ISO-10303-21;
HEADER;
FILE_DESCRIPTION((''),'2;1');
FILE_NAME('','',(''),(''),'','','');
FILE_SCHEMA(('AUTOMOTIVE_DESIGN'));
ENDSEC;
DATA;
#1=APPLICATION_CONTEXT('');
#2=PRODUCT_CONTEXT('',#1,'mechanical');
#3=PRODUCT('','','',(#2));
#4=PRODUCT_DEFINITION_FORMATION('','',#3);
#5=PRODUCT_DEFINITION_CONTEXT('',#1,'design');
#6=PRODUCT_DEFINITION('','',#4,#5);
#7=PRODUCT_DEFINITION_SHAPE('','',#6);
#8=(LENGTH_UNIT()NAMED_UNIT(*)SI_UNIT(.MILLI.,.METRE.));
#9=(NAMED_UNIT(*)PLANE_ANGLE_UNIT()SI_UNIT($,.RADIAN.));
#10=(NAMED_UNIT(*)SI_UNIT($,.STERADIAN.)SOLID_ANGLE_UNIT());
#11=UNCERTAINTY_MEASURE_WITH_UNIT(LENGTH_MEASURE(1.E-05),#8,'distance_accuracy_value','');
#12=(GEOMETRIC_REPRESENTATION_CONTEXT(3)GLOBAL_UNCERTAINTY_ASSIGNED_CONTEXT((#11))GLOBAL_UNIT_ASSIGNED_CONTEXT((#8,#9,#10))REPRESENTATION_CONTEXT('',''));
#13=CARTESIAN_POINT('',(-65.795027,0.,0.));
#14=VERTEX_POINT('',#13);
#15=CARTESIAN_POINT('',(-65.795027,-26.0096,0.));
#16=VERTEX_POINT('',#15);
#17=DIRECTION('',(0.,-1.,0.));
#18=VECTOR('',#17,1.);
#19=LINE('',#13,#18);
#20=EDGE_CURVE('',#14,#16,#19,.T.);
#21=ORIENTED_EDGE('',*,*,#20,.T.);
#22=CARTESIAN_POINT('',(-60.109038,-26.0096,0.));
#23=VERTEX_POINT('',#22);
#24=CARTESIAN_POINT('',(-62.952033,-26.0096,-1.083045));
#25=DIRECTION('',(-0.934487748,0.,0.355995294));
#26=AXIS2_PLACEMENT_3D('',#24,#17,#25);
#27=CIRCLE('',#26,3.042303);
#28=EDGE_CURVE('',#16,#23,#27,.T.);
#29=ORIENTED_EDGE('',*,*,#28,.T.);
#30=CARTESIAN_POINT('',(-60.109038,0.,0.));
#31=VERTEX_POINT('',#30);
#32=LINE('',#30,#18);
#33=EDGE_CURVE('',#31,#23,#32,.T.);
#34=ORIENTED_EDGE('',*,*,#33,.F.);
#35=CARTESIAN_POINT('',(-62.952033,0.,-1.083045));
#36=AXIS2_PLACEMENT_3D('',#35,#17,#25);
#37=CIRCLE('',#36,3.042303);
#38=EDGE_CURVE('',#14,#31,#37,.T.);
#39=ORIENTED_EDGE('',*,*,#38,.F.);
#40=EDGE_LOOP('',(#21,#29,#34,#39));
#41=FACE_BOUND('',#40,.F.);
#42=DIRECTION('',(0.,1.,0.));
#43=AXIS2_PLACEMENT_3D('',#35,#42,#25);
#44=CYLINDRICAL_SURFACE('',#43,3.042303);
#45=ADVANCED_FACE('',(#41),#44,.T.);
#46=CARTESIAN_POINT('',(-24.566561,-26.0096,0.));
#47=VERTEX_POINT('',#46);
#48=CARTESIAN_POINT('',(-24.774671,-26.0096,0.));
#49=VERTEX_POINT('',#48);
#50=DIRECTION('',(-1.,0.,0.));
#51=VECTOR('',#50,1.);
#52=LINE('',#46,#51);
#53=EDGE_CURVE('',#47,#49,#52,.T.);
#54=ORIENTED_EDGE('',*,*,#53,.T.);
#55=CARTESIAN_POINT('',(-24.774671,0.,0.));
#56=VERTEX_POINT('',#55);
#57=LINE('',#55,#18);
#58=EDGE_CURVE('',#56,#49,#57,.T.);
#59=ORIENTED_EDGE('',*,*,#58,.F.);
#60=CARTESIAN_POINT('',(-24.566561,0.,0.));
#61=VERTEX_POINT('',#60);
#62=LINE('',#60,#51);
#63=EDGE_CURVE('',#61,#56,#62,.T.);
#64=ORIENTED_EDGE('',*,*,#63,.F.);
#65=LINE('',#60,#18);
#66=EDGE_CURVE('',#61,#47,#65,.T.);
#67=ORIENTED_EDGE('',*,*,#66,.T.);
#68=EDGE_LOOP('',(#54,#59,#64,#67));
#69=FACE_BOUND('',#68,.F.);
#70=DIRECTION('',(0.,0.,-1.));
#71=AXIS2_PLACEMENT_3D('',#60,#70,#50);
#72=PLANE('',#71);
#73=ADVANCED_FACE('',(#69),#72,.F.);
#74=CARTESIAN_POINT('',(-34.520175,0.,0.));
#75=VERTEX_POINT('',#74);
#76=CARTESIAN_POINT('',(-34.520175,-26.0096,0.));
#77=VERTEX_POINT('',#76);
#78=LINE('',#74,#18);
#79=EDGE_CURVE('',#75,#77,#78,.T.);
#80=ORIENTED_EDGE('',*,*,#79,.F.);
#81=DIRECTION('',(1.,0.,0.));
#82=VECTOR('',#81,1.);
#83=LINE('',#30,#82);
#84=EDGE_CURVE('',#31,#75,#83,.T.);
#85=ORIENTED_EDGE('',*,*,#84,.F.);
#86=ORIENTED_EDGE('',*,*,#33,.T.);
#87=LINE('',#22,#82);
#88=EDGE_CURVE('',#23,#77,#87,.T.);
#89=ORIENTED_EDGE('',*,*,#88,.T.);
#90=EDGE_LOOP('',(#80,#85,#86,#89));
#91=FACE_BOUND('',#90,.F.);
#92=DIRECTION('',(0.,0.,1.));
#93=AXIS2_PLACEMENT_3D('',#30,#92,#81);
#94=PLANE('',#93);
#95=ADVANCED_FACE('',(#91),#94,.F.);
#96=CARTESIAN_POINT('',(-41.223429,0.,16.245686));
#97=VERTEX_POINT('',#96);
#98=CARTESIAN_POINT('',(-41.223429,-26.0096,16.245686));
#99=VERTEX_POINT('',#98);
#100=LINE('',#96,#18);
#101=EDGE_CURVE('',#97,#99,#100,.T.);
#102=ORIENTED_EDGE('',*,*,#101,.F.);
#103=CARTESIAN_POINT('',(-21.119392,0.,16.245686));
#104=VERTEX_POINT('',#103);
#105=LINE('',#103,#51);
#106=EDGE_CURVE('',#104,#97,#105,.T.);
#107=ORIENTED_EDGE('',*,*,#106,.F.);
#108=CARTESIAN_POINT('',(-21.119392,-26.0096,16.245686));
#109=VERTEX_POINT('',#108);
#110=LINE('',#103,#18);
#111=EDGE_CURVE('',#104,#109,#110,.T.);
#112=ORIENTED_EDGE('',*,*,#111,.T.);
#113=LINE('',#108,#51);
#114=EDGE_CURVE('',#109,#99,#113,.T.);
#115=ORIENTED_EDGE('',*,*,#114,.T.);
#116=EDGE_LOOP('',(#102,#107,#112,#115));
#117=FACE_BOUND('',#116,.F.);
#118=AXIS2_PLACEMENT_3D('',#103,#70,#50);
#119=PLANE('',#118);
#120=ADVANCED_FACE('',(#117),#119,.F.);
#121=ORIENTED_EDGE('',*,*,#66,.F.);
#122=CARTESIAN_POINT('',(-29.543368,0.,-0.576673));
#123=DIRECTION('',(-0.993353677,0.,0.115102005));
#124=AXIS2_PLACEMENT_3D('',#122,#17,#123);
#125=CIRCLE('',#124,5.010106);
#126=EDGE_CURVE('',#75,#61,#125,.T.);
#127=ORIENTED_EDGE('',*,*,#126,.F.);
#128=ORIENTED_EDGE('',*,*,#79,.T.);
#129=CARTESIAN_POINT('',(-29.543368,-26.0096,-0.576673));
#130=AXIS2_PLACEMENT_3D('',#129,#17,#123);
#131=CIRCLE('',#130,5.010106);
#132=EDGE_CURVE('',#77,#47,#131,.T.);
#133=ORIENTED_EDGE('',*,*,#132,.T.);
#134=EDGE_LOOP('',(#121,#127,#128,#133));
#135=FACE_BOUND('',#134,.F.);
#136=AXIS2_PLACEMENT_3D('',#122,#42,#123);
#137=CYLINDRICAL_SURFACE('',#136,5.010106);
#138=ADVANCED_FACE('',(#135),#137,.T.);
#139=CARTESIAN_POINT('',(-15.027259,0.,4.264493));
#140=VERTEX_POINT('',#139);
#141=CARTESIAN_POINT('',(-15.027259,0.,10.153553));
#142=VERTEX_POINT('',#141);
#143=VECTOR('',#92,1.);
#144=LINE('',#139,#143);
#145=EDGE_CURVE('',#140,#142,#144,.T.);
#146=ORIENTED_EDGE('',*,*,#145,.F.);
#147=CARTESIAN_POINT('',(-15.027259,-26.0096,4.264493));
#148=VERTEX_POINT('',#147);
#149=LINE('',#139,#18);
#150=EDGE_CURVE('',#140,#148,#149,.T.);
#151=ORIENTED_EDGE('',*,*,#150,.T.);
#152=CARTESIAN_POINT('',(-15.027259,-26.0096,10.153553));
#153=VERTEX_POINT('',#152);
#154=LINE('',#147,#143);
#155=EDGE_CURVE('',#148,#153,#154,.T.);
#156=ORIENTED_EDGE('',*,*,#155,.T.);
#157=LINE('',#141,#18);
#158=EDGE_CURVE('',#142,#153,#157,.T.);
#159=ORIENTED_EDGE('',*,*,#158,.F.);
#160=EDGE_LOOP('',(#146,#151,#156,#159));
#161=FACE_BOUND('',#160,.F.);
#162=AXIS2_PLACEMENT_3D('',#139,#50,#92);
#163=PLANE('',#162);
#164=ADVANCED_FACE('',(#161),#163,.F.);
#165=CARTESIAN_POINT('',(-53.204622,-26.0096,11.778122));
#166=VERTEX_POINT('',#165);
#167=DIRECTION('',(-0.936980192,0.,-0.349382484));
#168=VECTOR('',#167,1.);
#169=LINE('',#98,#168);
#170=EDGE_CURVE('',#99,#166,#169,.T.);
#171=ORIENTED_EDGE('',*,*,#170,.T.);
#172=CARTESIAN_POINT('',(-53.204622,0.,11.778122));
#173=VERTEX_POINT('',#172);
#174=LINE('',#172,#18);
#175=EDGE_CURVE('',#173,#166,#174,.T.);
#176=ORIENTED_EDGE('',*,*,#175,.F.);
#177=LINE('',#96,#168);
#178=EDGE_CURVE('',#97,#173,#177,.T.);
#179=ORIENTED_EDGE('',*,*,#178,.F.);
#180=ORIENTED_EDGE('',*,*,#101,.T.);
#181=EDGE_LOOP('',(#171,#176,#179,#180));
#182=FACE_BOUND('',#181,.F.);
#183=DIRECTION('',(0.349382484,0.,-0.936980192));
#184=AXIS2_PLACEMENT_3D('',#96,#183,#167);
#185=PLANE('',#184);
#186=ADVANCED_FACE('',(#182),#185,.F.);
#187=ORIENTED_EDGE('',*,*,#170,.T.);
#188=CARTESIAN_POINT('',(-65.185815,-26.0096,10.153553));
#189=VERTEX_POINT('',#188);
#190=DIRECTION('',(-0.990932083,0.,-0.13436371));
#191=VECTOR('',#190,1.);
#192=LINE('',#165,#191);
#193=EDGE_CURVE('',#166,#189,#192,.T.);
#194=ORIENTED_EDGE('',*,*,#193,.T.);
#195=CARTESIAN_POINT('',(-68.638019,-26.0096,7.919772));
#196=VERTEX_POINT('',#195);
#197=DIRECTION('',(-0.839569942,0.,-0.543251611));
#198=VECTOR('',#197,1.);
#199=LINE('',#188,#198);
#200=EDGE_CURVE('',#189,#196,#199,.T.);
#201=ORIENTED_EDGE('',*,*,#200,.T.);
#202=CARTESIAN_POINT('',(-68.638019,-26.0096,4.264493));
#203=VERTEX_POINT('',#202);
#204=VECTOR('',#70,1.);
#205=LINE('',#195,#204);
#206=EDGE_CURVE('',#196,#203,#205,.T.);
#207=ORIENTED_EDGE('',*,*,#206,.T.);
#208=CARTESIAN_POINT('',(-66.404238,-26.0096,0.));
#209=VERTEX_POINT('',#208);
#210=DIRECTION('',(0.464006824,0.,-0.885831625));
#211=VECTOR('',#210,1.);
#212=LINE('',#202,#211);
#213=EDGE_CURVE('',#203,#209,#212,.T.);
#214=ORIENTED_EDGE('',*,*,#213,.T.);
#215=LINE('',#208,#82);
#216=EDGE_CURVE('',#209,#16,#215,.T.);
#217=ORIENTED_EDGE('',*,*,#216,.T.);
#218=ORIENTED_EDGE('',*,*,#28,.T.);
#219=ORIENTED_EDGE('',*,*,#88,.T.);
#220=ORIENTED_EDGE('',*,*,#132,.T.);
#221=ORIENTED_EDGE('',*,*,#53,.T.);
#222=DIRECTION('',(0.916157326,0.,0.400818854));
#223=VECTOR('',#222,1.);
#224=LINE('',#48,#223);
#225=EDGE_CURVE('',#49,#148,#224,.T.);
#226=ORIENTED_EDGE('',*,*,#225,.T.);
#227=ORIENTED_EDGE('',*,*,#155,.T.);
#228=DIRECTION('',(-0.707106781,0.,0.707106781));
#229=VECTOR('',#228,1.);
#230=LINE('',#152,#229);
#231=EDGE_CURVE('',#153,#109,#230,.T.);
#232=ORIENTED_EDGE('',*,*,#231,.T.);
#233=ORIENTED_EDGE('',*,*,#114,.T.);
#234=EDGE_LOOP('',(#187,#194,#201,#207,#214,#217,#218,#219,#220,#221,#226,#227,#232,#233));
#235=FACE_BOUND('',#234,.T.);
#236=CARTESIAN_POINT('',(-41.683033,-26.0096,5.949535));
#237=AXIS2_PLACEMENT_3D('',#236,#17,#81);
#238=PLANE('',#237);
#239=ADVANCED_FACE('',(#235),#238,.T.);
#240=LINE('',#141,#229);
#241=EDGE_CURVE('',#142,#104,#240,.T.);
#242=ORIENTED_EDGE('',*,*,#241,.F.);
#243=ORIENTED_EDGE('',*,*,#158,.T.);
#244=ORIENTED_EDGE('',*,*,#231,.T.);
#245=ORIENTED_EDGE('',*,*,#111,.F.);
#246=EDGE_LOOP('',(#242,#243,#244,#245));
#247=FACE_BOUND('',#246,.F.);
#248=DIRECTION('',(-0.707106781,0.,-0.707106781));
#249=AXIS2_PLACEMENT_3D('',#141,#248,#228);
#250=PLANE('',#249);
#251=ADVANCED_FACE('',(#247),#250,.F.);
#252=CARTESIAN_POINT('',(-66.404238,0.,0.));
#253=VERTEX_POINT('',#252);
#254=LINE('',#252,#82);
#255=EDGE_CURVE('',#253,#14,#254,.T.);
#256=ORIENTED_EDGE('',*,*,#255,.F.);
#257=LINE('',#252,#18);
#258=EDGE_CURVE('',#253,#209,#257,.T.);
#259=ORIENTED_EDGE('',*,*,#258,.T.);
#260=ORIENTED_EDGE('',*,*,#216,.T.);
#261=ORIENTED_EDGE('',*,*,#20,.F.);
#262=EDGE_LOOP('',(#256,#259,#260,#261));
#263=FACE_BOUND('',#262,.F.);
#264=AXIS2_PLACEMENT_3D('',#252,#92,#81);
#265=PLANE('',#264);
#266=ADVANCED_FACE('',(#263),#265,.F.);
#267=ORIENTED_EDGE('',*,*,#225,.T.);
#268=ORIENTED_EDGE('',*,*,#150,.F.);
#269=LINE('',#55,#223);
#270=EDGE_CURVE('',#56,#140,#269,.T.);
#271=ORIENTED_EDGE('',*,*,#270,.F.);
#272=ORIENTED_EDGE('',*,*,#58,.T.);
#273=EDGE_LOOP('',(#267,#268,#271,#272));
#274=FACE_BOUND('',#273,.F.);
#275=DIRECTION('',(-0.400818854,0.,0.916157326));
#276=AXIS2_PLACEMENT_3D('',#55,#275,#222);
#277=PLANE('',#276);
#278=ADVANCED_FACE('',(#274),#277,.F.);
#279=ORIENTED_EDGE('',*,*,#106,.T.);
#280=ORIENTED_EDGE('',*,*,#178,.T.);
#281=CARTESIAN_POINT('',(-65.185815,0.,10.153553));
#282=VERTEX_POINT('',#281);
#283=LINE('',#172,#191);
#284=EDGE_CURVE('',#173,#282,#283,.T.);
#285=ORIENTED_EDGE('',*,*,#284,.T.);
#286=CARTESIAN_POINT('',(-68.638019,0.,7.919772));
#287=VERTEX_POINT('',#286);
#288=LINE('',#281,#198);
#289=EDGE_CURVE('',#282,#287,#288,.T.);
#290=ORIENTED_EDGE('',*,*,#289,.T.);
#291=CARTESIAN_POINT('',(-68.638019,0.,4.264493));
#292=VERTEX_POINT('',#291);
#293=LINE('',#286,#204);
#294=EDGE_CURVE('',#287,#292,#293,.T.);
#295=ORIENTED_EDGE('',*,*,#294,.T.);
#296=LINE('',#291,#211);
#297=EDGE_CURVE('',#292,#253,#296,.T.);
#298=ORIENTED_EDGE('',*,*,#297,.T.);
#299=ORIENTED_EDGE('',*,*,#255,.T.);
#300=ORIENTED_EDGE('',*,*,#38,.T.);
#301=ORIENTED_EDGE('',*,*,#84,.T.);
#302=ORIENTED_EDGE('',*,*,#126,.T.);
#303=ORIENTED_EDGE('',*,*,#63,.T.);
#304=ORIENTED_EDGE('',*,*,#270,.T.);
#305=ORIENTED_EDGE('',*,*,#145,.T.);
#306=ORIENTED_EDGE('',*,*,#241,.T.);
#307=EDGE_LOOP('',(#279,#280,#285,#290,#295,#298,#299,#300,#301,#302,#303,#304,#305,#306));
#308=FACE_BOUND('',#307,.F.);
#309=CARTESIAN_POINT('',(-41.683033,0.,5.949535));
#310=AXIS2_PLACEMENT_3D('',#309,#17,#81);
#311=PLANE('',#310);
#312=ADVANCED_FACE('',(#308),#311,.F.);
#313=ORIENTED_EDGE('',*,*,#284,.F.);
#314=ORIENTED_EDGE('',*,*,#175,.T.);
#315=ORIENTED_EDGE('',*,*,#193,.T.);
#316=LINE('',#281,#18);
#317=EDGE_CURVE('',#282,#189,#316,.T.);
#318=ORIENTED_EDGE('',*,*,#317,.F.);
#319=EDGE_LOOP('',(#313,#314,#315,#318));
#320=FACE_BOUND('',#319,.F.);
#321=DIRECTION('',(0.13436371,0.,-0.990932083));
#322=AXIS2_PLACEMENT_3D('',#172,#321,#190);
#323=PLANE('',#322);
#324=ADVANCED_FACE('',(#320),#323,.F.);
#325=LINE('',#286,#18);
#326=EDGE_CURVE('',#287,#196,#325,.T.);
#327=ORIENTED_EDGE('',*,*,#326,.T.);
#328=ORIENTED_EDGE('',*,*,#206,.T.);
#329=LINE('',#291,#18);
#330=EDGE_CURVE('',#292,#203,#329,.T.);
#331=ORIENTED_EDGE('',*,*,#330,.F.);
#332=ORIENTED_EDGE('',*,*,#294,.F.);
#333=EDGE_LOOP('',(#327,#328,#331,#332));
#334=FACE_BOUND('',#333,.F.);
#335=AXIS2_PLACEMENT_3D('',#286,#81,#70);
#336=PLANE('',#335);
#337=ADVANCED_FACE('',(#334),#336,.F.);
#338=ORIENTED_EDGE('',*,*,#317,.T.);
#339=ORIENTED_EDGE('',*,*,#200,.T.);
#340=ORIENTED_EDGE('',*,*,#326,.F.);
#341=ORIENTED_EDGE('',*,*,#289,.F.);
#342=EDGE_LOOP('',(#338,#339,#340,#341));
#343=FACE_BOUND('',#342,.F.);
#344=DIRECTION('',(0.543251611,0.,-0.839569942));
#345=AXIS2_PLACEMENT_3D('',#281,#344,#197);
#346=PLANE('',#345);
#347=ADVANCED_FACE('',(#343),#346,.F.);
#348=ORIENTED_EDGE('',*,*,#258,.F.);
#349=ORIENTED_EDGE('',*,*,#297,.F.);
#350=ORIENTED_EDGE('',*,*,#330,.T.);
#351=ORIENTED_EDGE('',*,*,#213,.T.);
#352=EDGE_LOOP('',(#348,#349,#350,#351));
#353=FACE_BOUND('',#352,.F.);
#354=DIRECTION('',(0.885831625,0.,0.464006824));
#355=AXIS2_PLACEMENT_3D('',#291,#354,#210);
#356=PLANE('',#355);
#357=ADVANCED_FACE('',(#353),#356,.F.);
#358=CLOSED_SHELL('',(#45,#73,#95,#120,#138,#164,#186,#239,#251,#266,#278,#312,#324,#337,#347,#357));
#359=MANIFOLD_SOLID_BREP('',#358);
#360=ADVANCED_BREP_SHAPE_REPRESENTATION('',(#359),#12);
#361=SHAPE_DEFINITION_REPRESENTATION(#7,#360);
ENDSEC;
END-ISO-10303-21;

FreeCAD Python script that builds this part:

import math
import FreeCAD as App
import Part
import Sketcher
from FreeCAD import Vector
Q = App.Units.Quantity

doc = App.newDocument("Part")
body = doc.addObject("PartDesign::Body", "Body")

sketch1 = body.newObject("Sketcher::SketchObject", "Sketch")
sketch1.AttachmentSupport = (doc.getObject("XZ_Plane"), [""])
sketch1.MapMode = "FlatFace"
sketch1.addGeometry([
    Part.LineSegment(Vector(-15.03, 4.26, 0), Vector(-15.03, 10.15, 0)),
    Part.LineSegment(Vector(-15.03, 10.15, 0), Vector(-21.12, 16.25, 0)),
    Part.LineSegment(Vector(-21.12, 16.25, 0), Vector(-41.22, 16.25, 0)),
    Part.LineSegment(Vector(-41.22, 16.25, 0), Vector(-53.2, 11.78, 0)),
    Part.LineSegment(Vector(-53.2, 11.78, 0), Vector(-65.19, 10.15, 0)),
    Part.LineSegment(Vector(-65.19, 10.15, 0), Vector(-68.64, 7.92, 0)),
    Part.LineSegment(Vector(-68.64, 7.92, 0), Vector(-68.64, 4.26, 0)),
    Part.LineSegment(Vector(-68.64, 4.26, 0), Vector(-66.4, 0, 0)),
    Part.LineSegment(Vector(-66.4, 0, 0), Vector(-65.8, 0, 0)),
    Part.ArcOfCircle(Part.Circle(Vector(-62.95, -1.08, 0), Vector(0, 0, 1), 3.04), math.radians(159), math.radians(381)),
    Part.LineSegment(Vector(-60.11, 0, 0), Vector(-34.52, 0, 0)),
    Part.ArcOfCircle(Part.Circle(Vector(-29.54, -0.58, 0), Vector(0, 0, 1), 5.01), math.radians(173), math.radians(367)),
    Part.LineSegment(Vector(-24.57, 0, 0), Vector(-24.77, 0, 0)),
    Part.LineSegment(Vector(-24.77, 0, 0), Vector(-15.03, 4.26, 0)),
], False)
sketch1.addConstraint([
    Sketcher.Constraint("Coincident", 0, 2, 1, 1),
    Sketcher.Constraint("Coincident", 1, 2, 2, 1),
    Sketcher.Constraint("Coincident", 2, 2, 3, 1),
    Sketcher.Constraint("Coincident", 3, 2, 4, 1),
    Sketcher.Constraint("Coincident", 4, 2, 5, 1),
    Sketcher.Constraint("Coincident", 5, 2, 6, 1),
    Sketcher.Constraint("Coincident", 6, 2, 7, 1),
    Sketcher.Constraint("Coincident", 7, 2, 8, 1),
    Sketcher.Constraint("Coincident", 8, 2, 9, 1),
    Sketcher.Constraint("Coincident", 9, 2, 10, 1),
    Sketcher.Constraint("Coincident", 10, 2, 11, 1),
    Sketcher.Constraint("Coincident", 11, 2, 12, 1),
    Sketcher.Constraint("Coincident", 12, 2, 13, 1),
    Sketcher.Constraint("Coincident", 13, 2, 0, 1),
    Sketcher.Constraint("Vertical", 0),
    Sketcher.Constraint("Horizontal", 2),
    Sketcher.Constraint("Vertical", 6),
    Sketcher.Constraint("Horizontal", 8),
    Sketcher.Constraint("Horizontal", 10),
    Sketcher.Constraint("Horizontal", 12),
    Sketcher.Constraint("PointOnObject", 7, 2, -1),
    Sketcher.Constraint("PointOnObject", 9, 2, -1),
    Sketcher.Constraint("PointOnObject", 11, 2, -1),
    Sketcher.Constraint("Horizontal", 0, 2, 4, 2),
    Sketcher.Constraint("Horizontal", 6, 2, 13, 2),
    Sketcher.Constraint("Angle", 1, Q("135 deg")),
    Sketcher.Constraint("Radius", 9, Q("3.042303 mm")),
    Sketcher.Constraint("Radius", 11, Q("5.010106 mm")),
    Sketcher.Constraint("DistanceX", 8, 1, 8, 2, Q("0.609211 mm")),
    Sketcher.Constraint("DistanceX", 12, 2, 12, 1, Q("0.20811 mm")),
    Sketcher.Constraint("DistanceY", 0, 1, 0, 2, Q("5.88906 mm")),
    Sketcher.Constraint("DistanceY", 6, 2, 6, 1, Q("3.655279 mm")),
    Sketcher.Constraint("DistanceY", 9, 3, 0, 2, Q("11.236598 mm")),
    Sketcher.Constraint("DistanceX", 7, 2, 9, 2, Q("6.2952 mm")),
    Sketcher.Constraint("Distance", 3, Q("12.787029 mm")),
    Sketcher.Constraint("Distance", 4, Q("12.090832 mm")),
    Sketcher.Constraint("Distance", 5, Q("4.111872 mm")),
    Sketcher.Constraint("DistanceX", 2, 2, 2, 1, Q("20.104037 mm")),
    Sketcher.Constraint("DistanceX", 10, 1, 10, 2, Q("25.588863 mm")),
    Sketcher.Constraint("DistanceX", 11, 3, -1, 1, Q("29.543368 mm")),
    Sketcher.Constraint("DistanceX", 0, 2, -1, 1, Q("15.027259 mm")),
    Sketcher.Constraint("DistanceX", 2, 2, -1, 1, Q("41.223429 mm")),
    Sketcher.Constraint("DistanceX", 5, 2, -1, 1, Q("68.638019 mm")),
    Sketcher.Constraint("DistanceX", 7, 2, -1, 1, Q("66.404238 mm")),
])
pad1 = body.newObject("PartDesign::Pad", "Pad")
pad1.Profile = sketch1
pad1.Length = Q("1.024 in")

doc.recompute()
